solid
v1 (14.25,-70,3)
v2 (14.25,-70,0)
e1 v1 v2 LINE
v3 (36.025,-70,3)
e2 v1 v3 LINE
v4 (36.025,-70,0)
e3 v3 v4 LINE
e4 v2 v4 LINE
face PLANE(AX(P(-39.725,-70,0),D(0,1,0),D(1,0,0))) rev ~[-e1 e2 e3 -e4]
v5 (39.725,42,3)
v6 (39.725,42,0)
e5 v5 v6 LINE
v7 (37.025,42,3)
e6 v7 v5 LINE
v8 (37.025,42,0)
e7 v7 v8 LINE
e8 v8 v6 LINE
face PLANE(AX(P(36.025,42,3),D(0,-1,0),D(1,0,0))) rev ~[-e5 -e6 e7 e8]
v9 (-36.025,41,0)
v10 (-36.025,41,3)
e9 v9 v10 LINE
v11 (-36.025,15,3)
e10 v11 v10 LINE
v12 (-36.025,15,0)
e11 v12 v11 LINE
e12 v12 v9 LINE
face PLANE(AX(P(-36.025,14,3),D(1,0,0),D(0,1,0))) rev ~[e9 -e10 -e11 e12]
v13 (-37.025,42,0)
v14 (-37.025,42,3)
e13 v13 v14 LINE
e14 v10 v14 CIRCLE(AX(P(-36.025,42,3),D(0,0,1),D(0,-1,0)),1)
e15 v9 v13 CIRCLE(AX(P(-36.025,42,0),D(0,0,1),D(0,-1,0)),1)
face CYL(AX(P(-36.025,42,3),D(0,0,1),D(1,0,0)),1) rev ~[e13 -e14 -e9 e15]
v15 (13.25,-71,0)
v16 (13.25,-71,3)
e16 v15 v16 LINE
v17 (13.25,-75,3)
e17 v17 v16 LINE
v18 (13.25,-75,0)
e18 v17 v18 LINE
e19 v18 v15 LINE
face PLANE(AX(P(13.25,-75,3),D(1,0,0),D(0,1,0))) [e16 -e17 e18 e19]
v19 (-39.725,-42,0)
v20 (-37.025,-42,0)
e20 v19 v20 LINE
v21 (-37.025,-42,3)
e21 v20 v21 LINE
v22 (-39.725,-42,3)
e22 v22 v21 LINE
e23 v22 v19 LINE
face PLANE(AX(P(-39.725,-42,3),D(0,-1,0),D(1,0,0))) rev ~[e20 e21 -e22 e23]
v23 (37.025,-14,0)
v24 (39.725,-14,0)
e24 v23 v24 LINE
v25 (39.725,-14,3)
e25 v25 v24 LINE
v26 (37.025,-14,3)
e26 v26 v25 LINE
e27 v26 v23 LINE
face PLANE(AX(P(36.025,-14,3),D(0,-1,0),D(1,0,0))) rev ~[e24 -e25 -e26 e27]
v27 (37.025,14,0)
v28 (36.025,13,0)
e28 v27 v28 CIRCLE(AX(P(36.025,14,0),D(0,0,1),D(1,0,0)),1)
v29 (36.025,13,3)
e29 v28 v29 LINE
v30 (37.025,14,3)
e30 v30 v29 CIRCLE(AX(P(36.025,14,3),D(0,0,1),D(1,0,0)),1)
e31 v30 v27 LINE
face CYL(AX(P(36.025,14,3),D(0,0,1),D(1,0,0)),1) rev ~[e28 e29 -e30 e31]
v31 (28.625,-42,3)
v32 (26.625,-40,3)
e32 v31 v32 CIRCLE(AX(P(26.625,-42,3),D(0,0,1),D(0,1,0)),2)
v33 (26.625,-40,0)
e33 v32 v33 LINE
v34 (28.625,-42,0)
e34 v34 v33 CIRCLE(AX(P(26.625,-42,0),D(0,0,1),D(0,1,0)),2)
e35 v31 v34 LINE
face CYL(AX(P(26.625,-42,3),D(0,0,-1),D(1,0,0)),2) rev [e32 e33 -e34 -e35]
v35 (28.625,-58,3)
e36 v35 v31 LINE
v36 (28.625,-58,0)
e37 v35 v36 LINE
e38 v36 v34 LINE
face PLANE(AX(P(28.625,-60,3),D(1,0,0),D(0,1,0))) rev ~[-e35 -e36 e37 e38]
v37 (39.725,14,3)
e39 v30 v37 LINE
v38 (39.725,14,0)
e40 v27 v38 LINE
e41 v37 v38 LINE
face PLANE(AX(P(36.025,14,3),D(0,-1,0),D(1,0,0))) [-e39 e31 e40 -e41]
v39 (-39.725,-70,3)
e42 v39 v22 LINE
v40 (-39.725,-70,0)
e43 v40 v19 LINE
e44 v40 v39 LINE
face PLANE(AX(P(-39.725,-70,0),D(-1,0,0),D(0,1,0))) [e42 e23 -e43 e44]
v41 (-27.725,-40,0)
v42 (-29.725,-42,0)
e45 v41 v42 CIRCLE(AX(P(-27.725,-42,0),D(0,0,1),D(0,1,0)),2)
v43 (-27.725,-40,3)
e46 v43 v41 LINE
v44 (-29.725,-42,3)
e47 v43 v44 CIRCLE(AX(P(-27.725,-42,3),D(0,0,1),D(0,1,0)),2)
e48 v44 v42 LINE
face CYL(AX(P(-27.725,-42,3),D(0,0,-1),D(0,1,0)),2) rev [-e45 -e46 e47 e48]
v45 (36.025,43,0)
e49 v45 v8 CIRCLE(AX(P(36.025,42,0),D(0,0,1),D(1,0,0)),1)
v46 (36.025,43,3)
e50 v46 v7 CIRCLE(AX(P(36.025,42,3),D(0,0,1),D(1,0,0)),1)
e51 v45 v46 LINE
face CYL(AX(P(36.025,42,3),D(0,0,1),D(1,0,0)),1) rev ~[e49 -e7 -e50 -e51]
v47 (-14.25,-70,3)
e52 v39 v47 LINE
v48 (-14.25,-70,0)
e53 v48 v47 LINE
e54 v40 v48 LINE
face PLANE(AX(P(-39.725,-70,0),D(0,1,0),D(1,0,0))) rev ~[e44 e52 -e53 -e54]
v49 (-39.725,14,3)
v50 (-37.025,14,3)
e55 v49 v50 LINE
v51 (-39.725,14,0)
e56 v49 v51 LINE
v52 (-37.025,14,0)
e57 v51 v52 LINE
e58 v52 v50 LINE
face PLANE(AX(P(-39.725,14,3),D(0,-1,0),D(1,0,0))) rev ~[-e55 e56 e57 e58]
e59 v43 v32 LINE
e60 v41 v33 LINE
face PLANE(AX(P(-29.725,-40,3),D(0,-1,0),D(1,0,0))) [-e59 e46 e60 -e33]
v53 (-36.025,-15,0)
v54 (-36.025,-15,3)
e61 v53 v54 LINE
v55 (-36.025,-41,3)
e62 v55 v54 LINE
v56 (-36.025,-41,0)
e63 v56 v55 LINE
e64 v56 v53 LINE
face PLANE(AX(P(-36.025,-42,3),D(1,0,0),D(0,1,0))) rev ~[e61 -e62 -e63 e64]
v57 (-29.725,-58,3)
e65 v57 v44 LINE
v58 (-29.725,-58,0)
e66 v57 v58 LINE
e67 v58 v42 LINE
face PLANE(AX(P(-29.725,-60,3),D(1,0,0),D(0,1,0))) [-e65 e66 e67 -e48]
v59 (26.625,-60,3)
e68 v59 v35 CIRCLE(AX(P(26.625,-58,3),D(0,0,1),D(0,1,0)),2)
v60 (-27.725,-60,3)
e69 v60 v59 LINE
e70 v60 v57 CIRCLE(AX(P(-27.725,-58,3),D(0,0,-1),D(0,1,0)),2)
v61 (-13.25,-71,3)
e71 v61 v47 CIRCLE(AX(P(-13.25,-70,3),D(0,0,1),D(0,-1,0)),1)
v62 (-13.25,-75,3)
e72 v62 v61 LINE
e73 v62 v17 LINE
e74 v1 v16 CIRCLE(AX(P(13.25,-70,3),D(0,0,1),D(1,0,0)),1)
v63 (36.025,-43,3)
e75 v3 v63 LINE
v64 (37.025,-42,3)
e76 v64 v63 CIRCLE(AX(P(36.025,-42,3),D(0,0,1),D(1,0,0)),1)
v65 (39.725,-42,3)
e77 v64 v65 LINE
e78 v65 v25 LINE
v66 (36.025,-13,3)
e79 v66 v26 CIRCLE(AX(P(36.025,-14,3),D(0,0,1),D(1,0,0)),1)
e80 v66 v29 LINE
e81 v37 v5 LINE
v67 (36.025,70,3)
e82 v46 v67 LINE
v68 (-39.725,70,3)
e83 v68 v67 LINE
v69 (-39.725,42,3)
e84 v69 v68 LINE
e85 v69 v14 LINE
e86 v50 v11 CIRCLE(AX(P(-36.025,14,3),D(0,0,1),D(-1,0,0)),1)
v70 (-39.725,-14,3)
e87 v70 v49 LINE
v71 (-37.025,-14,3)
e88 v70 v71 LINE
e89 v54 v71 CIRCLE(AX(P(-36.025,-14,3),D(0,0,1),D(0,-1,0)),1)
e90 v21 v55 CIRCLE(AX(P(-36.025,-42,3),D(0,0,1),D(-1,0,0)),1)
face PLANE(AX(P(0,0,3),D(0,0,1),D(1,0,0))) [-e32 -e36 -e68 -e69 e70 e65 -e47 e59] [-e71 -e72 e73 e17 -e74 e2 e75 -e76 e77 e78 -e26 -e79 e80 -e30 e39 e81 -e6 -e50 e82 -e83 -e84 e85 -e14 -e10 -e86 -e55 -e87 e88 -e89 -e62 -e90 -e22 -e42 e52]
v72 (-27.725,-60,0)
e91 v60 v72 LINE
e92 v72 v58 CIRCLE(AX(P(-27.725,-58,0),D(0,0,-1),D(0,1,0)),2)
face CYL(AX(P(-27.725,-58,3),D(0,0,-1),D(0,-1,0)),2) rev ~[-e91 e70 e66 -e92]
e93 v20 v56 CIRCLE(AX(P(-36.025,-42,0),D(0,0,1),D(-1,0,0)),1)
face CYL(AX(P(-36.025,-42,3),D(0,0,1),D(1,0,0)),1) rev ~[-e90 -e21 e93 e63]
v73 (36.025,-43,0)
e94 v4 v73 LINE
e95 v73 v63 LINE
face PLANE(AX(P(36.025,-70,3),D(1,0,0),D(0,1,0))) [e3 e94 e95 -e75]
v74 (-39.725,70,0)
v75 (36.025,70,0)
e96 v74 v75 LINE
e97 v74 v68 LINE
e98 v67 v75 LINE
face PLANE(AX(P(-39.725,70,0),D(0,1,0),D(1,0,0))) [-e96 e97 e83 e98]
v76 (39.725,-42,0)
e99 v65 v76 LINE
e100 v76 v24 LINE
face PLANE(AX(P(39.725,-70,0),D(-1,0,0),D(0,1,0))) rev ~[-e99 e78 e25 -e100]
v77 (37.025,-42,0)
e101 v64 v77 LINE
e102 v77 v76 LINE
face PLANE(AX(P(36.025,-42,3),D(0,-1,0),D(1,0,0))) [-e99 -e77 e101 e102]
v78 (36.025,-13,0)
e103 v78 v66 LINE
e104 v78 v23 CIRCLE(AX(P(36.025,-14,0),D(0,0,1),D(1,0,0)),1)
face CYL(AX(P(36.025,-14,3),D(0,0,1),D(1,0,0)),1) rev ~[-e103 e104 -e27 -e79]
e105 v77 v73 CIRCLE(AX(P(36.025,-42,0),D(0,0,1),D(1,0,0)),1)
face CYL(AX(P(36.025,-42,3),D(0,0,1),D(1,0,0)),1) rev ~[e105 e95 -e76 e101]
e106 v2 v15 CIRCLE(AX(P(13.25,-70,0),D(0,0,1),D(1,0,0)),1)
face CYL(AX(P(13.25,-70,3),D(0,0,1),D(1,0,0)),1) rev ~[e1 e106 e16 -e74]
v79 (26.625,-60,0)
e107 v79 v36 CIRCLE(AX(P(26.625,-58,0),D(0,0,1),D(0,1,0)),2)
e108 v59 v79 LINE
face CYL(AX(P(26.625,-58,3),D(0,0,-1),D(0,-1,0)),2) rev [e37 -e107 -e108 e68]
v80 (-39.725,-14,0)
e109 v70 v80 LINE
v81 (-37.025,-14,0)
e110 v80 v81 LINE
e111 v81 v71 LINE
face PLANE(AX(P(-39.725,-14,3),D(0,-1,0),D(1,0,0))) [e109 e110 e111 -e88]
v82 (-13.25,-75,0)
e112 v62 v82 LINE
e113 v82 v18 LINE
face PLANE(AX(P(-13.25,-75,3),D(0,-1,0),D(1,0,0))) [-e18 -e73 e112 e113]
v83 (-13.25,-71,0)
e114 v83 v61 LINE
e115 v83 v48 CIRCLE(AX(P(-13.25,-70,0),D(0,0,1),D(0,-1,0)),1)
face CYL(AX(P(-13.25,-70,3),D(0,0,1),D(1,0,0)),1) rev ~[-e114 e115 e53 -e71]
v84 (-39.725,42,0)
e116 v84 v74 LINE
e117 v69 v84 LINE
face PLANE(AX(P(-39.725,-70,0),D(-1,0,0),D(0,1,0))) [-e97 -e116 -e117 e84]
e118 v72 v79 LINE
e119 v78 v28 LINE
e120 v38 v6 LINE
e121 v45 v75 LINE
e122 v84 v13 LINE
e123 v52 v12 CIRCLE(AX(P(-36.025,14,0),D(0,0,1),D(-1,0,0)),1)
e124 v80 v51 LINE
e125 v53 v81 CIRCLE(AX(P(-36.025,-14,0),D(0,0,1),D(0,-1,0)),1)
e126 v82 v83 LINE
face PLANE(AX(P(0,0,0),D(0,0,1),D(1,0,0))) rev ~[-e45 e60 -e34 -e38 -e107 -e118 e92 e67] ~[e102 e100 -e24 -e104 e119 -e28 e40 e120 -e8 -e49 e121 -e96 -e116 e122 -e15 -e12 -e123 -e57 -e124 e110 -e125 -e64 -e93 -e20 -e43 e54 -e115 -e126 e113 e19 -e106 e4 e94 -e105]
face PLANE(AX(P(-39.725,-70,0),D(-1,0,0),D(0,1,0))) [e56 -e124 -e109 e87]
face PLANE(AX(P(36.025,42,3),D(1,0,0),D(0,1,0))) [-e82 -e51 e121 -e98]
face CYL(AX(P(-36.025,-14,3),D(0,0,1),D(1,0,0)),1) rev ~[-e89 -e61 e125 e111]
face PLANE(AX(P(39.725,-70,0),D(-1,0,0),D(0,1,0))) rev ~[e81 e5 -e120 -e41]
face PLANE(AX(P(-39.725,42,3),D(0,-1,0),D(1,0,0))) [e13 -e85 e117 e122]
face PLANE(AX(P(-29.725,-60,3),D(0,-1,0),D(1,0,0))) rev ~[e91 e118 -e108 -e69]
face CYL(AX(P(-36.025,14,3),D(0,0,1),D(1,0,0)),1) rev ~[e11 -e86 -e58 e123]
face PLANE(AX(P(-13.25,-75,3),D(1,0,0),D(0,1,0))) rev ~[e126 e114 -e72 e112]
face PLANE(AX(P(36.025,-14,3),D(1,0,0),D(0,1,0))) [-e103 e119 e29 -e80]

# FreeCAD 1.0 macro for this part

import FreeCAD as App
import Part
import Sketcher
from FreeCAD import Vector
Q = App.Units.Quantity


def edges_at(feature, points):
    """Names of the edges that pass closest to the given points."""
    edges = feature.Shape.Edges
    near = lambda p: min(range(len(edges)), key=lambda i: edges[i].distToShape(Part.Vertex(*p))[0])
    return sorted({f"Edge{near(p) + 1}" for p in points})


def add_polygon(sketch, points):
    """Adds a closed chain of lines whose ends are joined by coincident constraints."""
    first, n = sketch.GeometryCount, len(points)
    for a, b in zip(points, points[1:] + points[:1]):
        sketch.addGeometry(Part.LineSegment(App.Vector(*a, 0), App.Vector(*b, 0)), False)
    for i in range(n):
        sketch.addConstraint(Sketcher.Constraint("Coincident", first + i, 2, first + (i + 1) % n, 1))

doc = App.newDocument("Part")
params = doc.addObject("Spreadsheet::Sheet", "Params")
for row, (alias, value) in enumerate([
    ("sketch1_height", "140 mm"),
    ("sketch1_width", "79.45 mm"),
    ("pad1_length", "3 mm"),
    ("sketch2_height", "20 mm"),
    ("sketch2_width", "58.35 mm"),
    ("fillet_radius", "2 mm"),
    ("sketch3_height", "28 mm"),
    ("sketch3_width", "3.7 mm"),
    ("sketch4_height", "5 mm"),
    ("sketch4_width", "26.5 mm"),
    ("pad2_length", "3 mm"),
    ("sketch5_diameter", "2 mm"),
], start=1):
    params.set(f"A{row}", alias)
    params.set(f"B{row}", "=" + value)
    params.setAlias(f"B{row}", alias)

body = doc.addObject("PartDesign::Body", "Body")

sketch1 = doc.addObject("Sketcher::SketchObject", "Sketch")
body.addObject(sketch1)
sketch1.AttachmentSupport = (doc.XY_Plane, [""])
sketch1.MapMode = "FlatFace"
add_polygon(sketch1, [(-40, 70), (-40, -70), (40, -70), (40, 70)])
sketch1.addConstraint(Sketcher.Constraint("Vertical", 0))
sketch1.addConstraint(Sketcher.Constraint("Horizontal", 1))
sketch1.addConstraint(Sketcher.Constraint("Vertical", 2))
sketch1.addConstraint(Sketcher.Constraint("Horizontal", 3))
sketch1.addConstraint(Sketcher.Constraint("Symmetric", 0, 2, 2, 2, -1, 1))
sketch1.addConstraint(Sketcher.Constraint("DistanceY", 0, 2, 0, 1, Q("140 mm")))
sketch1.addConstraint(Sketcher.Constraint("DistanceX", 1, 1, 1, 2, Q("79.45 mm")))
sketch1.setExpression("Constraints[9]", "Params.sketch1_height")
sketch1.setExpression("Constraints[10]", "Params.sketch1_width")
pad1 = doc.addObject("PartDesign::Pad", "Pad")
body.addObject(pad1)
pad1.Profile = sketch1
pad1.setExpression("Length", "Params.pad1_length")

sketch2 = doc.addObject("Sketcher::SketchObject", "Sketch001")
body.addObject(sketch2)
sketch2.AttachmentSupport = (doc.XY_Plane, [""])
sketch2.MapMode = "FlatFace"
sketch2.AttachmentOffset = App.Placement(Vector(0, 0, 3), App.Rotation())
add_polygon(sketch2, [(-30, -40), (-30, -60), (29, -60), (29, -40)])
sketch2.addConstraint(Sketcher.Constraint("Vertical", 0))
sketch2.addConstraint(Sketcher.Constraint("Horizontal", 1))
sketch2.addConstraint(Sketcher.Constraint("Vertical", 2))
sketch2.addConstraint(Sketcher.Constraint("Horizontal", 3))
sketch2.addConstraint(Sketcher.Constraint("DistanceY", 0, 2, 0, 1, Q("20 mm")))
sketch2.addConstraint(Sketcher.Constraint("DistanceY", 0, 2, -1, 1, Q("60 mm")))
sketch2.addConstraint(Sketcher.Constraint("DistanceX", 1, 1, 1, 2, Q("58.35 mm")))
sketch2.addConstraint(Sketcher.Constraint("DistanceX", 0, 2, -1, 1, Q("29.725 mm")))
sketch2.setExpression("Constraints[8]", "Params.sketch2_height")
sketch2.setExpression("Constraints[10]", "Params.sketch2_width")
pocket1 = doc.addObject("PartDesign::Pocket", "Pocket")
body.addObject(pocket1)
pocket1.Profile = sketch2
pocket1.Type = "ThroughAll"
doc.recompute()

fillet = doc.addObject("PartDesign::Fillet", "Fillet")
body.addObject(fillet)
fillet.Base = (pocket1, edges_at(pocket1, [
    (28.625, -40, 1.5),
    (28.625, -60, 1.5),
    (-29.725, -60, 1.5),
    (-29.725, -40, 1.5),
]))
fillet.setExpression("Radius", "Params.fillet_radius")

sketch3 = doc.addObject("Sketcher::SketchObject", "Sketch002")
body.addObject(sketch3)
sketch3.AttachmentSupport = (doc.XY_Plane, [""])
sketch3.MapMode = "FlatFace"
sketch3.AttachmentOffset = App.Placement(Vector(0, 0, 3), App.Rotation())
add_polygon(sketch3, [(-39.7, 42), (-39.7, 14), (-36, 14), (-36, 42)])
add_polygon(sketch3, [(-39.7, -14), (-39.7, -42), (-36, -42), (-36, -14)])
add_polygon(sketch3, [(36, 70), (36, 42), (39.7, 42), (39.7, 70)])
add_polygon(sketch3, [(36, 14), (36, -14), (39.7, -14), (39.7, 14)])
add_polygon(sketch3, [(36, -42), (36, -70), (39.7, -70), (39.7, -42)])
sketch3.addConstraint(Sketcher.Constraint("Vertical", 0))
sketch3.addConstraint(Sketcher.Constraint("Horizontal", 1))
sketch3.addConstraint(Sketcher.Constraint("Vertical", 2))
sketch3.addConstraint(Sketcher.Constraint("Horizontal", 3))
sketch3.addConstraint(Sketcher.Constraint("Vertical", 4))
sketch3.addConstraint(Sketcher.Constraint("Horizontal", 5))
sketch3.addConstraint(Sketcher.Constraint("Vertical", 6))
sketch3.addConstraint(Sketcher.Constraint("Horizontal", 7))
sketch3.addConstraint(Sketcher.Constraint("Vertical", 8))
sketch3.addConstraint(Sketcher.Constraint("Horizontal", 9))
sketch3.addConstraint(Sketcher.Constraint("Vertical", 10))
sketch3.addConstraint(Sketcher.Constraint("Horizontal", 11))
sketch3.addConstraint(Sketcher.Constraint("Vertical", 12))
sketch3.addConstraint(Sketcher.Constraint("Horizontal", 13))
sketch3.addConstraint(Sketcher.Constraint("Vertical", 14))
sketch3.addConstraint(Sketcher.Constraint("Horizontal", 15))
sketch3.addConstraint(Sketcher.Constraint("Vertical", 16))
sketch3.addConstraint(Sketcher.Constraint("Horizontal", 17))
sketch3.addConstraint(Sketcher.Constraint("Vertical", 18))
sketch3.addConstraint(Sketcher.Constraint("Horizontal", 19))
sketch3.addConstraint(Sketcher.Constraint("Symmetric", 5, 2, 8, 2, -1, 1))
sketch3.addConstraint(Sketcher.Constraint("Symmetric", 1, 2, 12, 2, -1, 1))
sketch3.addConstraint(Sketcher.Constraint("Symmetric", 7, 2, 14, 2, -1, 1))
sketch3.addConstraint(Sketcher.Constraint("Symmetric", 3, 2, 18, 2, -1, 1))
sketch3.addConstraint(Sketcher.Constraint("Symmetric", 2, 2, 8, 2, -2))
sketch3.addConstraint(Sketcher.Constraint("Symmetric", 0, 2, 14, 2, -2))
sketch3.addConstraint(Sketcher.Constraint("Symmetric", 11, 2, 16, 2, -1))
sketch3.addConstraint(Sketcher.Constraint("Vertical", 10, 2, 13, 2))
sketch3.addConstraint(Sketcher.Constraint("Equal", 6, 8))
sketch3.addConstraint(Sketcher.Constraint("Equal", 10, 12))
sketch3.addConstraint(Sketcher.Constraint("DistanceY", 0, 2, 0, 1, Q("28 mm")))
sketch3.addConstraint(Sketcher.Constraint("DistanceX", 1, 1, 1, 2, Q("3.7 mm")))
sketch3.addConstraint(Sketcher.Constraint("DistanceX", 2, 2, 8, 2, Q("72.05 mm")))
sketch3.setExpression("Constraints[50]", "Params.sketch3_height")
sketch3.setExpression("Constraints[51]", "Params.sketch3_width")
pocket2 = doc.addObject("PartDesign::Pocket", "Pocket001")
body.addObject(pocket2)
pocket2.Profile = sketch3
pocket2.Type = "ThroughAll"

sketch4 = doc.addObject("Sketcher::SketchObject", "Sketch003")
body.addObject(sketch4)
sketch4.AttachmentSupport = (doc.XY_Plane, [""])
sketch4.MapMode = "FlatFace"
sketch4.AttachmentOffset = App.Placement(Vector(0, 0, 3), App.Rotation())
add_polygon(sketch4, [(-13, -70), (-13, -75), (13, -75), (13, -70)])
sketch4.addConstraint(Sketcher.Constraint("Vertical", 0))
sketch4.addConstraint(Sketcher.Constraint("Horizontal", 1))
sketch4.addConstraint(Sketcher.Constraint("Vertical", 2))
sketch4.addConstraint(Sketcher.Constraint("Horizontal", 3))
sketch4.addConstraint(Sketcher.Constraint("DistanceY", 0, 2, 0, 1, Q("5 mm")))
sketch4.addConstraint(Sketcher.Constraint("DistanceX", 1, 1, 1, 2, Q("26.5 mm")))
sketch4.addConstraint(Sketcher.Constraint("DistanceY", 0, 2, -1, 1, Q("75 mm")))
sketch4.addConstraint(Sketcher.Constraint("DistanceX", 0, 2, -1, 1, Q("13.25 mm")))
sketch4.setExpression("Constraints[8]", "Params.sketch4_height")
sketch4.setExpression("Constraints[9]", "Params.sketch4_width")
pad2 = doc.addObject("PartDesign::Pad", "Pad001")
body.addObject(pad2)
pad2.Profile = sketch4
pad2.setExpression("Length", "Params.pad2_length")
pad2.Reversed = True

sketch5 = doc.addObject("Sketcher::SketchObject", "Sketch004")
body.addObject(sketch5)
sketch5.AttachmentSupport = (doc.XY_Plane, [""])
sketch5.MapMode = "FlatFace"
sketch5.AttachmentOffset = App.Placement(Vector(0, 0, 3), App.Rotation())
sketch5.addGeometry(Part.Circle(Vector(-36, 42, 0), Vector(0, 0, 1), 1), False)
sketch5.addGeometry(Part.Circle(Vector(-36, 14, 0), Vector(0, 0, 1), 1), False)
sketch5.addGeometry(Part.Circle(Vector(-36, -14, 0), Vector(0, 0, 1), 1), False)
sketch5.addGeometry(Part.Circle(Vector(-36, -42, 0), Vector(0, 0, 1), 1), False)
sketch5.addGeometry(Part.Circle(Vector(-13.2, -70, 0), Vector(0, 0, 1), 1), False)
sketch5.addGeometry(Part.Circle(Vector(13.2, -70, 0), Vector(0, 0, 1), 1), False)
sketch5.addGeometry(Part.Circle(Vector(36, -42, 0), Vector(0, 0, 1), 1), False)
sketch5.addGeometry(Part.Circle(Vector(36, -14, 0), Vector(0, 0, 1), 1), False)
sketch5.addGeometry(Part.Circle(Vector(36, 14, 0), Vector(0, 0, 1), 1), False)
sketch5.addGeometry(Part.Circle(Vector(36, 42, 0), Vector(0, 0, 1), 1), False)
sketch5.addConstraint(Sketcher.Constraint("Equal", 0, 1))
sketch5.addConstraint(Sketcher.Constraint("Equal", 1, 2))
sketch5.addConstraint(Sketcher.Constraint("Equal", 2, 3))
sketch5.addConstraint(Sketcher.Constraint("Equal", 3, 4))
sketch5.addConstraint(Sketcher.Constraint("Equal", 4, 5))
sketch5.addConstraint(Sketcher.Constraint("Equal", 5, 6))
sketch5.addConstraint(Sketcher.Constraint("Equal", 6, 7))
sketch5.addConstraint(Sketcher.Constraint("Equal", 7, 8))
sketch5.addConstraint(Sketcher.Constraint("Equal", 8, 9))
sketch5.addConstraint(Sketcher.Constraint("Symmetric", 0, 3, 6, 3, -1, 1))
sketch5.addConstraint(Sketcher.Constraint("Symmetric", 1, 3, 7, 3, -1, 1))
sketch5.addConstraint(Sketcher.Constraint("Symmetric", 2, 3, 8, 3, -1, 1))
sketch5.addConstraint(Sketcher.Constraint("Symmetric", 3, 3, 9, 3, -1, 1))
sketch5.addConstraint(Sketcher.Constraint("Symmetric", 4, 3, 5, 3, -2))
sketch5.addConstraint(Sketcher.Constraint("Symmetric", 3, 3, 6, 3, -2))
sketch5.addConstraint(Sketcher.Constraint("Symmetric", 2, 3, 7, 3, -2))
sketch5.addConstraint(Sketcher.Constraint("Vertical", 0, 3, 1, 3))
sketch5.addConstraint(Sketcher.Constraint("Diameter", 0, Q("2 mm")))
sketch5.addConstraint(Sketcher.Constraint("DistanceY", -1, 1, 0, 3, Q("42 mm")))
sketch5.addConstraint(Sketcher.Constraint("DistanceY", -1, 1, 1, 3, Q("14 mm")))
sketch5.addConstraint(Sketcher.Constraint("DistanceY", 4, 3, -1, 1, Q("70 mm")))
sketch5.addConstraint(Sketcher.Constraint("DistanceX", 4, 3, 5, 3, Q("26.5 mm")))
sketch5.addConstraint(Sketcher.Constraint("DistanceX", 3, 3, 6, 3, Q("72.05 mm")))
sketch5.setExpression("Constraints[17]", "Params.sketch5_diameter")
pocket3 = doc.addObject("PartDesign::Pocket", "Pocket002")
body.addObject(pocket3)
pocket3.Profile = sketch5
pocket3.Type = "ThroughAll"

doc.recompute()
